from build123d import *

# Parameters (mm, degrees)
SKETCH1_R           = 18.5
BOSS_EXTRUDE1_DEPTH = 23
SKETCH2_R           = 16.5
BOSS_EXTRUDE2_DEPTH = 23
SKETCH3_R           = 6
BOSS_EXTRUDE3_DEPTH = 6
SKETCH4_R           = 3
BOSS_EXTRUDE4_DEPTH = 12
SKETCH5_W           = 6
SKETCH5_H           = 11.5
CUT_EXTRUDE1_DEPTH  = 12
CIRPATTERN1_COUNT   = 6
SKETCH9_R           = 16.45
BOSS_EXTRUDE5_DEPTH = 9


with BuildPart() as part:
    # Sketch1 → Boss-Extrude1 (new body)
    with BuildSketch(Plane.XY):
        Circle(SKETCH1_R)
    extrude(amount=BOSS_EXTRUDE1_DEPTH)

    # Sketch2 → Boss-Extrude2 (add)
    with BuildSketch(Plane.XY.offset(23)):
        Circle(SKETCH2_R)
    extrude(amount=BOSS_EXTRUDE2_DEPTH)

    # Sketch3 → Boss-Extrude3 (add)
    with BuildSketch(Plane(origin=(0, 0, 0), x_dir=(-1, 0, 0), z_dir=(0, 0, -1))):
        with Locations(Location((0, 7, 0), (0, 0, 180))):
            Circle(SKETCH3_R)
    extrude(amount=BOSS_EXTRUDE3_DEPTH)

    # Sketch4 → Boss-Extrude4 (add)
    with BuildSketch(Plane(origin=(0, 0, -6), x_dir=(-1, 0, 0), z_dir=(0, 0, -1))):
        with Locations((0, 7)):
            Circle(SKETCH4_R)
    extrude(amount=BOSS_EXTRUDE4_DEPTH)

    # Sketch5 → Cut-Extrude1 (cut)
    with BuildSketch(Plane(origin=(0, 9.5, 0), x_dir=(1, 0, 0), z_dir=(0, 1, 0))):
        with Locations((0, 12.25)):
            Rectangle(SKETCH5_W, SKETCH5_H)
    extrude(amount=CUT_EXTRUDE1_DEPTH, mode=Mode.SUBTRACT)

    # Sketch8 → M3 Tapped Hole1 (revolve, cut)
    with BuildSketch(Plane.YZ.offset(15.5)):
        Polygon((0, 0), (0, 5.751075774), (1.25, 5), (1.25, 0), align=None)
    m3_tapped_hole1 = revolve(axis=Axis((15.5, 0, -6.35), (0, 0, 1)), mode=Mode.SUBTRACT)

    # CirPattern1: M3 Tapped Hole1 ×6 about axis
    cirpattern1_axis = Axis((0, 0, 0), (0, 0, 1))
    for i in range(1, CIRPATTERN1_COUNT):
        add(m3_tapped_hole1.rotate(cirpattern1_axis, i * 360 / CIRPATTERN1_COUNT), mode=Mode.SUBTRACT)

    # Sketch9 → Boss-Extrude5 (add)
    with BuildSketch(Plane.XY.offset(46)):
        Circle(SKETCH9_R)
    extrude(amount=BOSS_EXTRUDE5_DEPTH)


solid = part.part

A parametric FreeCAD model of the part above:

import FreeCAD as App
import Part
import Sketcher
Q = App.Units.Quantity


def add_polygon(sketch, points):
    """Adds a closed chain of lines whose ends are joined by coincident constraints."""
    first, n = sketch.GeometryCount, len(points)
    for a, b in zip(points, points[1:] + points[:1]):
        sketch.addGeometry(Part.LineSegment(App.Vector(*a, 0), App.Vector(*b, 0)), False)
    for i in range(n):
        sketch.addConstraint(Sketcher.Constraint("Coincident", first + i, 2, first + (i + 1) % n, 1))

doc = App.newDocument("Part")
body = doc.addObject("PartDesign::Body", "Body")

# Sketch on XY plane
sketch1 = body.newObject("Sketcher::SketchObject", "Sketch")
sketch1.AttachmentSupport = (doc.getObject("XY_Plane"), [""])
sketch1.MapMode = "FlatFace"
sketch1.addGeometry(Part.Circle(App.Vector(0, 0, 0), App.Vector(0, 0, 1), 18), False)
sketch1.addConstraint(Sketcher.Constraint("Coincident", 0, 3, -1, 1))
sketch1.addConstraint(Sketcher.Constraint("Diameter", 0, Q("37 mm")))
pad1 = body.newObject("PartDesign::Pad", "Pad")
pad1.Profile = sketch1
pad1.Length = 23

# Sketch on XY plane
sketch2 = body.newObject("Sketcher::SketchObject", "Sketch001")
sketch2.AttachmentSupport = (doc.getObject("XY_Plane"), [""])
sketch2.MapMode = "FlatFace"
sketch2.AttachmentOffset = App.Placement(App.Vector(0, 0, 23), App.Rotation())
sketch2.addGeometry(Part.Circle(App.Vector(0, 0, 0), App.Vector(0, 0, 1), 16), False)
sketch2.addConstraint(Sketcher.Constraint("Coincident", 0, 3, -1, 1))
sketch2.addConstraint(Sketcher.Constraint("Diameter", 0, Q("33 mm")))
pad2 = body.newObject("PartDesign::Pad", "Pad001")
pad2.Profile = sketch2
pad2.Length = 23

# Sketch on XY plane
sketch3 = body.newObject("Sketcher::SketchObject", "Sketch002")
sketch3.AttachmentSupport = (doc.getObject("XY_Plane"), [""])
sketch3.MapMode = "FlatFace"
sketch3.addGeometry(Part.Circle(App.Vector(0, 7, 0), App.Vector(0, 0, 1), 6), False)
sketch3.addConstraint(Sketcher.Constraint("PointOnObject", 0, 3, -2))
sketch3.addConstraint(Sketcher.Constraint("Diameter", 0, Q("12 mm")))
sketch3.addConstraint(Sketcher.Constraint("DistanceY", -1, 1, 0, 3, Q("7 mm")))
pad3 = body.newObject("PartDesign::Pad", "Pad002")
pad3.Profile = sketch3
pad3.Length = 6
pad3.Reversed = True

# Sketch on XY plane
sketch4 = body.newObject("Sketcher::SketchObject", "Sketch003")
sketch4.AttachmentSupport = (doc.getObject("XY_Plane"), [""])
sketch4.MapMode = "FlatFace"
sketch4.AttachmentOffset = App.Placement(App.Vector(0, 0, -6), App.Rotation())
sketch4.addGeometry(Part.Circle(App.Vector(0, 7, 0), App.Vector(0, 0, 1), 3), False)
sketch4.addConstraint(Sketcher.Constraint("PointOnObject", 0, 3, -2))
sketch4.addConstraint(Sketcher.Constraint("Diameter", 0, Q("6 mm")))
sketch4.addConstraint(Sketcher.Constraint("DistanceY", -1, 1, 0, 3, Q("7 mm")))
pad4 = body.newObject("PartDesign::Pad", "Pad003")
pad4.Profile = sketch4
pad4.Length = 12
pad4.Reversed = True

# Sketch on XZ plane
sketch5 = body.newObject("Sketcher::SketchObject", "Sketch004")
sketch5.AttachmentSupport = (doc.getObject("XZ_Plane"), [""])
sketch5.MapMode = "FlatFace"
sketch5.AttachmentOffset = App.Placement(App.Vector(0, 0, -9.5), App.Rotation())
add_polygon(sketch5, [(-3, -18), (-3, -6), (3, -6), (3, -18)])  # lines 0-3
sketch5.addConstraint(Sketcher.Constraint("Vertical", 0))
sketch5.addConstraint(Sketcher.Constraint("Horizontal", 1))
sketch5.addConstraint(Sketcher.Constraint("Vertical", 2))
sketch5.addConstraint(Sketcher.Constraint("Horizontal", 3))
sketch5.addConstraint(Sketcher.Constraint("DistanceX", 1, 1, 1, 2, Q("6 mm")))
sketch5.addConstraint(Sketcher.Constraint("DistanceY", 0, 1, 0, 2, Q("11.5 mm")))
sketch5.addConstraint(Sketcher.Constraint("DistanceX", 0, 2, -1, 1, Q("3 mm")))
sketch5.addConstraint(Sketcher.Constraint("DistanceY", 2, 2, -1, 1, Q("18 mm")))
pocket1 = body.newObject("PartDesign::Pocket", "Pocket")
pocket1.Profile = sketch5
pocket1.Length = 12

# Sketch on YZ plane
sketch6 = body.newObject("Sketcher::SketchObject", "Sketch005")
sketch6.AttachmentSupport = (doc.getObject("YZ_Plane"), [""])
sketch6.MapMode = "FlatFace"
sketch6.AttachmentOffset = App.Placement(App.Vector(0, 0, 15.5), App.Rotation())
add_polygon(sketch6, [(0, 5.8), (0, 0), (1.2, 0), (1.2, 5)])  # lines 0-3
sketch6.addConstraint(Sketcher.Constraint("Vertical", 0))
sketch6.addConstraint(Sketcher.Constraint("Horizontal", 1))
sketch6.addConstraint(Sketcher.Constraint("Vertical", 2))
sketch6.addConstraint(Sketcher.Constraint("Coincident", 0, 2, -1, 1))
sketch6.addConstraint(Sketcher.Constraint("DistanceY", 2, 1, 2, 2, Q("5 mm")))
sketch6.addConstraint(Sketcher.Constraint("Angle", 3, Q("149 deg")))
sketch6.addConstraint(Sketcher.Constraint("DistanceX", 1, 1, 1, 2, Q("1.25 mm")))
groove = body.newObject("PartDesign::Groove", "Groove")
groove.Profile = sketch6
groove.ReferenceAxis = (sketch6, ["V_Axis"])
groove.Angle = 360
doc.recompute()

polarpattern = body.newObject("PartDesign::PolarPattern", "PolarPattern")
polarpattern.Originals = [groove]
polarpattern.Axis = (doc.getObject("Z_Axis"), [""])
polarpattern.Angle = 360
polarpattern.Occurrences = 6
body.Tip = polarpattern

# Sketch on XY plane
sketch7 = body.newObject("Sketcher::SketchObject", "Sketch006")
sketch7.AttachmentSupport = (doc.getObject("XY_Plane"), [""])
sketch7.MapMode = "FlatFace"
sketch7.AttachmentOffset = App.Placement(App.Vector(0, 0, 46), App.Rotation())
sketch7.addGeometry(Part.Circle(App.Vector(0, 0, 0), App.Vector(0, 0, 1), 16), False)
sketch7.addConstraint(Sketcher.Constraint("Coincident", 0, 3, -1, 1))
sketch7.addConstraint(Sketcher.Constraint("Diameter", 0, Q("32.9 mm")))
pad5 = body.newObject("PartDesign::Pad", "Pad004")
pad5.Profile = sketch7
pad5.Length = 9

doc.recompute()
